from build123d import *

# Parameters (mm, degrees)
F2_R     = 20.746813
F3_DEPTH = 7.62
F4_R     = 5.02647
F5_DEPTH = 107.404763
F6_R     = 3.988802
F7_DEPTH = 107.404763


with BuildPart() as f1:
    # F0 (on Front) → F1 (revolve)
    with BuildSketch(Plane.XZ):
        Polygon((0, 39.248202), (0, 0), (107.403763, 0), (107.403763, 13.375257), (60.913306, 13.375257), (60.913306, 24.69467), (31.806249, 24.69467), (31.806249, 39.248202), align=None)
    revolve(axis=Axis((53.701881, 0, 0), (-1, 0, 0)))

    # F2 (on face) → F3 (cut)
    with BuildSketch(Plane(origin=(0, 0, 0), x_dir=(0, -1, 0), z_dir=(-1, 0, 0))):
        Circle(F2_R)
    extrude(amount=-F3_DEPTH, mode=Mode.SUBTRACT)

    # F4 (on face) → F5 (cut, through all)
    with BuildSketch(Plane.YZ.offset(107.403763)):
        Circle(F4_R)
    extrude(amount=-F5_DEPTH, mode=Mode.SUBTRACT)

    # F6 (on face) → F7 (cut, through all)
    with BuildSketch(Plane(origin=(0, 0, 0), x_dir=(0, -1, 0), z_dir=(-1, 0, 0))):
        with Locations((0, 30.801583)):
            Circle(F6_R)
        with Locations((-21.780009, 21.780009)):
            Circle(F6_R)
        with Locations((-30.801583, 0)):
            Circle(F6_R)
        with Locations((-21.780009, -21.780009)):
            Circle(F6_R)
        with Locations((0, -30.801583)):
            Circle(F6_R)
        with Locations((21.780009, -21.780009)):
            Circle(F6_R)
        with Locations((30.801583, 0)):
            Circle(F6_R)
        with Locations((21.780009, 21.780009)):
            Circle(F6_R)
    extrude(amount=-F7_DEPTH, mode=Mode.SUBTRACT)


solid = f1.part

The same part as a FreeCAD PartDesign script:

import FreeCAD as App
import Part
import Sketcher

V = App.Vector
Q = App.Units.Quantity

doc = App.newDocument("Part")
body = doc.addObject("PartDesign::Body", "Body")

sketch1 = body.newObject("Sketcher::SketchObject", "Sketch")
sketch1.AttachmentSupport = (doc.getObject("XZ_Plane"), [""])
sketch1.MapMode = "FlatFace"
sketch1.addGeometry([
    Part.LineSegment(V(0, 39.248202, 0), V(0, 0, 0)),
    Part.LineSegment(V(0, 0, 0), V(107.403763, 0, 0)),
    Part.LineSegment(V(107.403763, 0, 0), V(107.403763, 13.375257, 0)),
    Part.LineSegment(V(107.403763, 13.375257, 0), V(60.913306, 13.375257, 0)),
    Part.LineSegment(V(60.913306, 13.375257, 0), V(60.913306, 24.69467, 0)),
    Part.LineSegment(V(60.913306, 24.69467, 0), V(31.806249, 24.69467, 0)),
    Part.LineSegment(V(31.806249, 24.69467, 0), V(31.806249, 39.248202, 0)),
    Part.LineSegment(V(31.806249, 39.248202, 0), V(0, 39.248202, 0)),
], False)
sketch1.addConstraint([
    Sketcher.Constraint("Coincident", 0, 2, 1, 1),
    Sketcher.Constraint("Coincident", 1, 2, 2, 1),
    Sketcher.Constraint("Coincident", 2, 2, 3, 1),
    Sketcher.Constraint("Coincident", 3, 2, 4, 1),
    Sketcher.Constraint("Coincident", 4, 2, 5, 1),
    Sketcher.Constraint("Coincident", 5, 2, 6, 1),
    Sketcher.Constraint("Coincident", 6, 2, 7, 1),
    Sketcher.Constraint("Coincident", 7, 2, 0, 1),
    Sketcher.Constraint("Vertical", 0),
    Sketcher.Constraint("Horizontal", 1),
    Sketcher.Constraint("Vertical", 2),
    Sketcher.Constraint("Horizontal", 3),
    Sketcher.Constraint("Vertical", 4),
    Sketcher.Constraint("Horizontal", 5),
    Sketcher.Constraint("Vertical", 6),
    Sketcher.Constraint("Horizontal", 7),
    Sketcher.Constraint("Coincident", 0, 2, -1, 1),
    Sketcher.Constraint("DistanceX", 7, 2, 7, 1, 31.806249),
    Sketcher.Constraint("DistanceX", 1, 1, 1, 2, 107.403763),
    Sketcher.Constraint("DistanceX", 3, 2, 3, 1, 46.490457),
    Sketcher.Constraint("DistanceY", 0, 2, 0, 1, 39.248202),
    Sketcher.Constraint("DistanceY", 2, 1, 2, 2, 13.375257),
    Sketcher.Constraint("DistanceY", 4, 1, 4, 2, 11.319413),
])
revolution = body.newObject("PartDesign::Revolution", "Revolution")
revolution.Profile = sketch1
revolution.ReferenceAxis = (sketch1, ["H_Axis"])
revolution.Angle = 360

sketch2 = body.newObject("Sketcher::SketchObject", "Sketch001")
sketch2.AttachmentSupport = (doc.getObject("YZ_Plane"), [""])
sketch2.MapMode = "FlatFace"
sketch2.addGeometry(Part.Circle(V(0, 0, 0), V(0, 0, 1), 20.746813), False)
sketch2.addConstraint([
    Sketcher.Constraint("Coincident", 0, 3, -1, 1),
    Sketcher.Constraint("Diameter", 0, 41.493626),
])
pocket1 = body.newObject("PartDesign::Pocket", "Pocket")
pocket1.Profile = sketch2
pocket1.Length = Q("0.3 in")
pocket1.Reversed = True

sketch3 = body.newObject("Sketcher::SketchObject", "Sketch002")
sketch3.AttachmentSupport = (doc.getObject("YZ_Plane"), [""])
sketch3.MapMode = "FlatFace"
sketch3.AttachmentOffset = App.Placement(V(0, 0, 107.403763), App.Rotation())
sketch3.addGeometry(Part.Circle(V(0, 0, 0), V(0, 0, 1), 5.02647), False)
sketch3.addConstraint([
    Sketcher.Constraint("Coincident", 0, 3, -1, 1),
    Sketcher.Constraint("Diameter", 0, 10.05294),
])
pocket2 = body.newObject("PartDesign::Pocket", "Pocket001")
pocket2.Profile = sketch3
pocket2.Type = "ThroughAll"

sketch4 = body.newObject("Sketcher::SketchObject", "Sketch003")
sketch4.AttachmentSupport = (doc.getObject("YZ_Plane"), [""])
sketch4.MapMode = "FlatFace"
sketch4.addGeometry([
    Part.Circle(V(0, 30.801583, 0), V(0, 0, 1), 3.988802),
    Part.Circle(V(21.780009, 21.780009, 0), V(0, 0, 1), 3.988802),
    Part.Circle(V(30.801583, 0, 0), V(0, 0, 1), 3.988802),
    Part.Circle(V(21.780009, -21.780009, 0), V(0, 0, 1), 3.988802),
    Part.Circle(V(0, -30.801583, 0), V(0, 0, 1), 3.988802),
    Part.Circle(V(-21.780009, -21.780009, 0), V(0, 0, 1), 3.988802),
    Part.Circle(V(-30.801583, 0, 0), V(0, 0, 1), 3.988802),
    Part.Circle(V(-21.780009, 21.780009, 0), V(0, 0, 1), 3.988802),
], False)
sketch4.addConstraint([
    Sketcher.Constraint("Equal", 0, 1),
    Sketcher.Constraint("Equal", 1, 2),
    Sketcher.Constraint("Equal", 2, 3),
    Sketcher.Constraint("Equal", 3, 4),
    Sketcher.Constraint("Equal", 4, 5),
    Sketcher.Constraint("Equal", 5, 6),
    Sketcher.Constraint("Equal", 6, 7),
    Sketcher.Constraint("Symmetric", 0, 3, 4, 3, -1, 1),
    Sketcher.Constraint("Symmetric", 1, 3, 5, 3, -1, 1),
    Sketcher.Constraint("Symmetric", 2, 3, 6, 3, -1, 1),
    Sketcher.Constraint("Symmetric", 3, 3, 7, 3, -1, 1),
    Sketcher.Constraint("Symmetric", 3, 3, 5, 3, -2),
    Sketcher.Constraint("PointOnObject", 0, 3, -2),
    Sketcher.Constraint("PointOnObject", 2, 3, -1),
    Sketcher.Constraint("Diameter", 0, 7.977604),
    Sketcher.Constraint("DistanceX", -1, 1, 1, 3, 21.780009),
    Sketcher.Constraint("DistanceY", -1, 1, 1, 3, 21.780009),
    Sketcher.Constraint("DistanceY", -1, 1, 0, 3, 30.801583),
    Sketcher.Constraint("DistanceX", -1, 1, 2, 3, 30.801583),
])
pocket3 = body.newObject("PartDesign::Pocket", "Pocket002")
pocket3.Profile = sketch4
pocket3.Type = "ThroughAll"
pocket3.Reversed = True

doc.recompute()
